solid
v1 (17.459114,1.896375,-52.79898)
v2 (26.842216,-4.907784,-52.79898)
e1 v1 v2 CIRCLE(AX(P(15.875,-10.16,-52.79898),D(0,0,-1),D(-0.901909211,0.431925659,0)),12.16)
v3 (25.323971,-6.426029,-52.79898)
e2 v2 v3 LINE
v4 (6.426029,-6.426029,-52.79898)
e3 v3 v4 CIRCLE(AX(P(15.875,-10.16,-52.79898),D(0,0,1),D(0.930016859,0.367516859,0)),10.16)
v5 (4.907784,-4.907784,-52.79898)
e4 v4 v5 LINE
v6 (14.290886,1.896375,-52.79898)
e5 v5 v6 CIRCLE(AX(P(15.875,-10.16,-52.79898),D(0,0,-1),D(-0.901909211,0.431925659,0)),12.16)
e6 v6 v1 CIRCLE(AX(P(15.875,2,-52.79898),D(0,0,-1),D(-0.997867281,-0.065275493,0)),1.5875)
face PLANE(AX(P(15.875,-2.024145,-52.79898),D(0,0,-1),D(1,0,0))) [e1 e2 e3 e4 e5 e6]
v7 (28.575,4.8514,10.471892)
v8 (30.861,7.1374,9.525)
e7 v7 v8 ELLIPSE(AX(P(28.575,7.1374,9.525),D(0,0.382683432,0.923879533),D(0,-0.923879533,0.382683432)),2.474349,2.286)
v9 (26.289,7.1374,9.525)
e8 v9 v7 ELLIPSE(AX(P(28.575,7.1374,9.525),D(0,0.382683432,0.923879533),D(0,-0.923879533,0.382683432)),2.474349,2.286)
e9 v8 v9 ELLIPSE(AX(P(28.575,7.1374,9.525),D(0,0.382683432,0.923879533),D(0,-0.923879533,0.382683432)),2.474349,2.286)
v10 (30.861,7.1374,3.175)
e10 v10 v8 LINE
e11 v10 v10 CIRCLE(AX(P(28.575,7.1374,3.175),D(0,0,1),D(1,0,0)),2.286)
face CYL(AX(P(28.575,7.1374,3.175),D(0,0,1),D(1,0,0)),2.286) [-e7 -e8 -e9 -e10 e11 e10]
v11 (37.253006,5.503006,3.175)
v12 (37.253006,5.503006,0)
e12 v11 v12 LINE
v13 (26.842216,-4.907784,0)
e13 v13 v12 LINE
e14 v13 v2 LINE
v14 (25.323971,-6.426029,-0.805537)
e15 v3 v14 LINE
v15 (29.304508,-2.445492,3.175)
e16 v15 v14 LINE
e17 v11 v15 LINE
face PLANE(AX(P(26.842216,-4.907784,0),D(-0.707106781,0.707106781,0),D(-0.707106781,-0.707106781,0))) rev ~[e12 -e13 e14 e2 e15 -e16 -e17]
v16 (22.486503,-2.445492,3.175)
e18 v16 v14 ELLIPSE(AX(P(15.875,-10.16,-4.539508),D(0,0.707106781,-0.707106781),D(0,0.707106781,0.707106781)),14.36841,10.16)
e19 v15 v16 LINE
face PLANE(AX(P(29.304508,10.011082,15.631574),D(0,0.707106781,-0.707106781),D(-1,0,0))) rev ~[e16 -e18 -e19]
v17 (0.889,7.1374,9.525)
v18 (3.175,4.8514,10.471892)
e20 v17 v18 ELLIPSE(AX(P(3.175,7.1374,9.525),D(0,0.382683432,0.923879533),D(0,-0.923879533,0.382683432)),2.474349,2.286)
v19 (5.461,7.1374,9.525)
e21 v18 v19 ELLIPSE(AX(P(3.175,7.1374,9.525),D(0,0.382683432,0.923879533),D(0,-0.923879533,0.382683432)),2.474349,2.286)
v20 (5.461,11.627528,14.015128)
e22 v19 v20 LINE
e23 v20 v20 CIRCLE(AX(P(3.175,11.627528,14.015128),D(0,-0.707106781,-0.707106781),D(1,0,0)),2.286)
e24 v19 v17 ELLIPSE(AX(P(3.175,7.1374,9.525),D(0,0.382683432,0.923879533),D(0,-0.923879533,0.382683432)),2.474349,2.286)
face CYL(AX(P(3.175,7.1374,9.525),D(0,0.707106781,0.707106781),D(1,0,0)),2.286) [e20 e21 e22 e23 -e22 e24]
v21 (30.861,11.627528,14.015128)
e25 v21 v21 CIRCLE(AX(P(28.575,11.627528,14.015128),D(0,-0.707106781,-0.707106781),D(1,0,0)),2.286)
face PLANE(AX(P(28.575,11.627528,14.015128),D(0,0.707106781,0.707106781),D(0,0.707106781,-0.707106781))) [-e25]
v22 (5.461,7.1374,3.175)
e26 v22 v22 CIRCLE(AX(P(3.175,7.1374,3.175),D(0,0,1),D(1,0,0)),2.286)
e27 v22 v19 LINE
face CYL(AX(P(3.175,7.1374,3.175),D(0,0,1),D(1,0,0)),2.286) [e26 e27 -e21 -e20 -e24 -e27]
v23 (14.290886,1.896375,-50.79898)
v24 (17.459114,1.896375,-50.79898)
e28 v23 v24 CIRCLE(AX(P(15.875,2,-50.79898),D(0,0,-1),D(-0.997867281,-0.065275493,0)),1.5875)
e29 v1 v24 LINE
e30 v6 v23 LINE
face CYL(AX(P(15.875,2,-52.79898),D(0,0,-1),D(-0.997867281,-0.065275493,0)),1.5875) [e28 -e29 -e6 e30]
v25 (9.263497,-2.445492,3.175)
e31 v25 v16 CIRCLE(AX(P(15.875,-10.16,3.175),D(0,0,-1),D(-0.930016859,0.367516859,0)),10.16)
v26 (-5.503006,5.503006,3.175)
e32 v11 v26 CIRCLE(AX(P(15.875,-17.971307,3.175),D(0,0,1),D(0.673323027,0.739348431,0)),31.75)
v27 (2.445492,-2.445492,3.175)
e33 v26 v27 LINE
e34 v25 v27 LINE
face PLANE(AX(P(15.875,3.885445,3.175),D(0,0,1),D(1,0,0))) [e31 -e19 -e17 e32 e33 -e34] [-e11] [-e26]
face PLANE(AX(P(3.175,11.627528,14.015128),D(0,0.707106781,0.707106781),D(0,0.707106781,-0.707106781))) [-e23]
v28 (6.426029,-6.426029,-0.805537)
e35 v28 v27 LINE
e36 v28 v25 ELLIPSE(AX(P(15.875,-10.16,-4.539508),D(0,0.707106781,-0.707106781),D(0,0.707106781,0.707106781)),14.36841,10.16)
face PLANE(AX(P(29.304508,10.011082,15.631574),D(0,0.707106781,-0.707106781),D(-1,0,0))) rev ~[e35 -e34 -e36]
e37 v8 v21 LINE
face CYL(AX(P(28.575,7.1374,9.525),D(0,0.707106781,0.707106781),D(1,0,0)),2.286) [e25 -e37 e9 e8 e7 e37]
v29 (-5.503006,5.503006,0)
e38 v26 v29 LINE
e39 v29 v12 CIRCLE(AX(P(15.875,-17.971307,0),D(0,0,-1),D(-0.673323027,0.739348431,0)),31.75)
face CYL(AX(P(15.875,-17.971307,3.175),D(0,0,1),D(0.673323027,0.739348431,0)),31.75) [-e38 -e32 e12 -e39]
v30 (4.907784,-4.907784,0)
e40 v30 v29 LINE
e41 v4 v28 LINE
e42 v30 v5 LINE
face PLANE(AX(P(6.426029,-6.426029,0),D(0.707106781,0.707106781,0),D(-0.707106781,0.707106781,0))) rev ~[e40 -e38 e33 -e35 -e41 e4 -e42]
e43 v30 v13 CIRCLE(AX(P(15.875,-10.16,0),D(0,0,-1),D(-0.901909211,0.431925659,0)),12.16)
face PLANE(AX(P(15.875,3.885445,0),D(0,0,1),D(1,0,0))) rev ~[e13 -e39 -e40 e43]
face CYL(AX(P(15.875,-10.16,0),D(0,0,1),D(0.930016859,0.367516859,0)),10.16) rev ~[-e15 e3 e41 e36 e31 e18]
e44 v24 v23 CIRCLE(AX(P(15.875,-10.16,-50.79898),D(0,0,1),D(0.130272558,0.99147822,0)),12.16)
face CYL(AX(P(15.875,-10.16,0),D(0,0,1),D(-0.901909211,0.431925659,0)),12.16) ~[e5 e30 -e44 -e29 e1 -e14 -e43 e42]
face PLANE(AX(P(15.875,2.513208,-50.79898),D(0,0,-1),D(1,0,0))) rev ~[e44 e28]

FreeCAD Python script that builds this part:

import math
import FreeCAD as App
import Part
import Sketcher

V = App.Vector
Q = App.Units.Quantity

doc = App.newDocument("Part")
body = doc.addObject("PartDesign::Body", "Body")

# Sketch on XY plane
sketch1 = body.newObject("Sketcher::SketchObject", "Sketch")
sketch1.AttachmentSupport = (doc.getObject("XY_Plane"), [""])
sketch1.MapMode = "FlatFace"
sketch1.addGeometry([
    Part.LineSegment(V(0, 10, 0), V(0, 0, 0)),
    Part.LineSegment(V(0, 0, 0), V(32, 0, 0)),
    Part.LineSegment(V(32, 0, 0), V(32, 10, 0)),
    Part.LineSegment(V(32, 10, 0), V(0, 10, 0)),
], False)
sketch1.addConstraint([
    Sketcher.Constraint("Coincident", 0, 2, 1, 1),
    Sketcher.Constraint("Coincident", 1, 2, 2, 1),
    Sketcher.Constraint("Coincident", 2, 2, 3, 1),
    Sketcher.Constraint("Coincident", 3, 2, 0, 1),
    Sketcher.Constraint("Vertical", 0),
    Sketcher.Constraint("Horizontal", 1),
    Sketcher.Constraint("Vertical", 2),
    Sketcher.Constraint("Horizontal", 3),
    Sketcher.Constraint("Coincident", 0, 2, -1, 1),
    Sketcher.Constraint("DistanceX", 1, 1, 1, 2, Q("1.25 in")),
    Sketcher.Constraint("DistanceY", 0, 2, 0, 1, Q("0.375 in")),
])
pad1 = body.newObject("PartDesign::Pad", "Pad")
pad1.Profile = sketch1
pad1.Length = Q("0.125 in")

# Sketch on XY plane
sketch2 = body.newObject("Sketcher::SketchObject", "Sketch001")
sketch2.AttachmentSupport = (doc.getObject("XY_Plane"), [""])
sketch2.MapMode = "FlatFace"
sketch2.AttachmentOffset = App.Placement(V(0, 0, 0.125 * 25.4), App.Rotation())
sketch2.addGeometry(Part.Circle(V(28.6, 7.1, 0), V(0, 0, 1), 2.3), False)
sketch2.addConstraint([
    Sketcher.Constraint("Diameter", 0, Q("0.18 in")),
    Sketcher.Constraint("DistanceX", -1, 1, 0, 3, Q("1.125 in")),
    Sketcher.Constraint("DistanceY", -1, 1, 0, 3, Q("0.281 in")),
])

# Sketch on YZ plane
sketch3 = body.newObject("Sketcher::SketchObject", "Sketch002")
sketch3.AttachmentSupport = (doc.getObject("YZ_Plane"), [""])
sketch3.MapMode = "FlatFace"
sketch3.AttachmentOffset = App.Placement(V(0, 0, 1.125 * 25.4), App.Rotation())
sketch3.addGeometry([
    Part.LineSegment(V(7, 3, 0), V(7, 10, 0)),
    Part.LineSegment(V(7, 10, 0), V(12, 14, 0)),
], False)
sketch3.addConstraint([
    Sketcher.Constraint("Coincident", 0, 2, 1, 1),
    Sketcher.Constraint("Vertical", 0),
    Sketcher.Constraint("Angle", 1, Q("45 deg")),
    Sketcher.Constraint("DistanceY", 0, 1, 0, 2, Q("0.25 in")),
    Sketcher.Constraint("Distance", 1, Q("0.25 in")),
    Sketcher.Constraint("DistanceX", -1, 1, 0, 1, Q("0.281 in")),
    Sketcher.Constraint("DistanceY", -1, 1, 0, 1, Q("0.125 in")),
])
doc.recompute()

additivepipe = body.newObject("PartDesign::AdditivePipe", "AdditivePipe")
additivepipe.Profile = sketch2
additivepipe.Spine = (sketch3, ["Edge1", "Edge2"])
additivepipe.Transition = "Right corner"

# Sketch on XY plane
sketch4 = body.newObject("Sketcher::SketchObject", "Sketch003")
sketch4.AttachmentSupport = (doc.getObject("XY_Plane"), [""])
sketch4.MapMode = "FlatFace"
sketch4.AttachmentOffset = App.Placement(V(0, 0, 0.125 * 25.4), App.Rotation())
sketch4.addGeometry(Part.Circle(V(3.2, 7.1, 0), V(0, 0, 1), 2.3), False)
sketch4.addConstraint([
    Sketcher.Constraint("Diameter", 0, Q("0.18 in")),
    Sketcher.Constraint("DistanceX", -1, 1, 0, 3, Q("0.125 in")),
    Sketcher.Constraint("DistanceY", -1, 1, 0, 3, Q("0.281 in")),
])

# Sketch on YZ plane
sketch5 = body.newObject("Sketcher::SketchObject", "Sketch004")
sketch5.AttachmentSupport = (doc.getObject("YZ_Plane"), [""])
sketch5.MapMode = "FlatFace"
sketch5.AttachmentOffset = App.Placement(V(0, 0, 0.125 * 25.4), App.Rotation())
sketch5.addGeometry([
    Part.LineSegment(V(7, 3, 0), V(7, 10, 0)),
    Part.LineSegment(V(7, 10, 0), V(12, 14, 0)),
], False)
sketch5.addConstraint([
    Sketcher.Constraint("Coincident", 0, 2, 1, 1),
    Sketcher.Constraint("Vertical", 0),
    Sketcher.Constraint("Angle", 1, Q("45 deg")),
    Sketcher.Constraint("DistanceY", 0, 1, 0, 2, Q("0.25 in")),
    Sketcher.Constraint("Distance", 1, Q("0.25 in")),
    Sketcher.Constraint("DistanceX", -1, 1, 0, 1, Q("0.281 in")),
    Sketcher.Constraint("DistanceY", -1, 1, 0, 1, Q("0.125 in")),
])
doc.recompute()

additivepipe2 = body.newObject("PartDesign::AdditivePipe", "AdditivePipe001")
additivepipe2.Profile = sketch4
additivepipe2.Spine = (sketch5, ["Edge1", "Edge2"])
additivepipe2.Transition = "Right corner"

# Sketch on XY plane
sketch6 = body.newObject("Sketcher::SketchObject", "Sketch005")
sketch6.AttachmentSupport = (doc.getObject("XY_Plane"), [""])
sketch6.MapMode = "FlatFace"
sketch6.AttachmentOffset = App.Placement(V(0, 0, 0.125 * 25.4), App.Rotation())
sketch6.addGeometry([
    Part.LineSegment(V(25, -6, 0), V(37, 6, 0)),
    Part.ArcOfCircle(Part.Circle(V(16, -18, 0), V(0, 0, 1), 32), math.radians(48), math.radians(132)),
    Part.LineSegment(V(-6, 6, 0), V(6, -6, 0)),
    Part.ArcOfCircle(Part.Circle(V(16, -10, 0), V(0, 0, 1), 10), math.radians(22), math.radians(158)),
], False)
sketch6.addConstraint([
    Sketcher.Constraint("Coincident", 0, 2, 1, 1),
    Sketcher.Constraint("Coincident", 1, 2, 2, 1),
    Sketcher.Constraint("Coincident", 2, 2, 3, 2),
    Sketcher.Constraint("Coincident", 3, 1, 0, 1),
    Sketcher.Constraint("Perpendicular", 0, 2),
    Sketcher.Constraint("Horizontal", 0, 2, 1, 2),
    Sketcher.Constraint("Horizontal", 2, 2, 3, 1),
    Sketcher.Constraint("Vertical", 1, 3, 3, 3),
    Sketcher.Constraint("Radius", 3, Q("0.4 in")),
    Sketcher.Constraint("Radius", 1, Q("1.25 in")),
    Sketcher.Constraint("DistanceY", 3, 3, -1, 1, Q("0.4 in")),
    Sketcher.Constraint("DistanceX", -1, 1, 1, 3, Q("0.625 in")),
    Sketcher.Constraint("DistanceX", -1, 1, 2, 2, 6.426029),
    Sketcher.Constraint("Distance", 0, 16.870203),
])
pad2 = body.newObject("PartDesign::Pad", "Pad001")
pad2.Profile = sketch6
pad2.Type = "UpToLast"
pad2.Reversed = True

# Sketch on XY plane
sketch7 = body.newObject("Sketcher::SketchObject", "Sketch006")
sketch7.AttachmentSupport = (doc.getObject("XY_Plane"), [""])
sketch7.MapMode = "FlatFace"
sketch7.addGeometry([
    Part.LineSegment(V(6.4, -6.4, 0), V(4.9, -4.9, 0)),
    Part.ArcOfCircle(Part.Circle(V(15.9, -10.2, 0), V(0, 0, 1), 12.2), math.radians(26), math.radians(154)),
    Part.LineSegment(V(26.8, -4.9, 0), V(25.3, -6.4, 0)),
    Part.ArcOfCircle(Part.Circle(V(15.9, -10.2, 0), V(0, 0, 1), 10.2), math.radians(22), math.radians(158)),
], False)
sketch7.addConstraint([
    Sketcher.Constraint("Coincident", 0, 2, 1, 2),
    Sketcher.Constraint("Coincident", 1, 1, 2, 1),
    Sketcher.Constraint("Coincident", 2, 2, 3, 1),
    Sketcher.Constraint("Coincident", 3, 2, 0, 1),
    Sketcher.Constraint("Coincident", 3, 3, 1, 3),
    Sketcher.Constraint("Perpendicular", 0, 2),
    Sketcher.Constraint("Horizontal", 0, 2, 1, 1),
    Sketcher.Constraint("Horizontal", 2, 2, 3, 2),
    Sketcher.Constraint("Radius", 3, Q("0.4 in")),
    Sketcher.Constraint("DistanceY", 1, 3, -1, 1, Q("0.4 in")),
    Sketcher.Constraint("Radius", 1, 12.16),
    Sketcher.Constraint("DistanceX", -1, 1, 1, 3, Q("0.625 in")),
    Sketcher.Constraint("DistanceX", -1, 1, 2, 2, 25.323971),
])
pad3 = body.newObject("PartDesign::Pad", "Pad002")
pad3.Profile = sketch7
pad3.Length = Q("2.0787 in")
pad3.Reversed = True

# Sketch on an angled plane
sketch8 = body.newObject("Sketcher::SketchObject", "Sketch007")
sketch8.Placement = App.Placement(V(0, 12.821328, 12.821328), App.Rotation(V(1, 0, 0), V(0, 0.707106781, -0.707106781), V(0, 0.707106781, 0.707106781), "ZXY"))
sketch8.addGeometry([
    Part.LineSegment(V(2, -4, 0), V(2, -10, 0)),
    Part.LineSegment(V(2, -10, 0), V(29, -10, 0)),
    Part.LineSegment(V(29, -10, 0), V(29, -4, 0)),
    Part.LineSegment(V(29, -4, 0), V(2, -4, 0)),
], False)
sketch8.addConstraint([
    Sketcher.Constraint("Coincident", 0, 2, 1, 1),
    Sketcher.Constraint("Coincident", 1, 2, 2, 1),
    Sketcher.Constraint("Coincident", 2, 2, 3, 1),
    Sketcher.Constraint("Coincident", 3, 2, 0, 1),
    Sketcher.Constraint("Vertical", 0),
    Sketcher.Constraint("Horizontal", 1),
    Sketcher.Constraint("Vertical", 2),
    Sketcher.Constraint("Horizontal", 3),
    Sketcher.Constraint("DistanceY", 0, 2, 0, 1, 6.280541),
    Sketcher.Constraint("DistanceX", 1, 1, 1, 2, 26.859016),
    Sketcher.Constraint("DistanceY", 0, 2, -1, 1, 10.254829),
    Sketcher.Constraint("DistanceX", -1, 1, 0, 2, 2.445492),
])
pocket1 = body.newObject("PartDesign::Pocket", "Pocket")
pocket1.Profile = sketch8
pocket1.Length = Q("1 in")

# Sketch on XY plane
sketch9 = body.newObject("Sketcher::SketchObject", "Sketch008")
sketch9.AttachmentSupport = (doc.getObject("XY_Plane"), [""])
sketch9.MapMode = "FlatFace"
sketch9.AttachmentOffset = App.Placement(V(0, 0, -2.0787 * 25.4), App.Rotation())
sketch9.addGeometry([
    Part.ArcOfCircle(Part.Circle(V(15.9, -10.2, 0), V(0, 0, 1), 12.2), math.radians(82.51), math.radians(97.49)),
    Part.ArcOfCircle(Part.Circle(V(15.9, 2, 0), V(0, 0, 1), 1.6), math.radians(-4), math.radians(184)),
], False)
sketch9.addConstraint([
    Sketcher.Constraint("Coincident", 0, 1, 1, 1),
    Sketcher.Constraint("Coincident", 1, 2, 0, 2),
    Sketcher.Constraint("Horizontal", 0, 1, 1, 2),
    Sketcher.Constraint("Radius", 1, Q("0.0625 in")),
    Sketcher.Constraint("DistanceY", 0, 3, -1, 1, Q("0.4 in")),
    Sketcher.Constraint("Radius", 0, 12.16),
    Sketcher.Constraint("DistanceX", -1, 1, 0, 3, Q("0.625 in")),
    Sketcher.Constraint("DistanceY", -1, 1, 1, 3, 2.0),
])
pad4 = body.newObject("PartDesign::Pad", "Pad003")
pad4.Profile = sketch9
pad4.Length = 2

doc.recompute()
